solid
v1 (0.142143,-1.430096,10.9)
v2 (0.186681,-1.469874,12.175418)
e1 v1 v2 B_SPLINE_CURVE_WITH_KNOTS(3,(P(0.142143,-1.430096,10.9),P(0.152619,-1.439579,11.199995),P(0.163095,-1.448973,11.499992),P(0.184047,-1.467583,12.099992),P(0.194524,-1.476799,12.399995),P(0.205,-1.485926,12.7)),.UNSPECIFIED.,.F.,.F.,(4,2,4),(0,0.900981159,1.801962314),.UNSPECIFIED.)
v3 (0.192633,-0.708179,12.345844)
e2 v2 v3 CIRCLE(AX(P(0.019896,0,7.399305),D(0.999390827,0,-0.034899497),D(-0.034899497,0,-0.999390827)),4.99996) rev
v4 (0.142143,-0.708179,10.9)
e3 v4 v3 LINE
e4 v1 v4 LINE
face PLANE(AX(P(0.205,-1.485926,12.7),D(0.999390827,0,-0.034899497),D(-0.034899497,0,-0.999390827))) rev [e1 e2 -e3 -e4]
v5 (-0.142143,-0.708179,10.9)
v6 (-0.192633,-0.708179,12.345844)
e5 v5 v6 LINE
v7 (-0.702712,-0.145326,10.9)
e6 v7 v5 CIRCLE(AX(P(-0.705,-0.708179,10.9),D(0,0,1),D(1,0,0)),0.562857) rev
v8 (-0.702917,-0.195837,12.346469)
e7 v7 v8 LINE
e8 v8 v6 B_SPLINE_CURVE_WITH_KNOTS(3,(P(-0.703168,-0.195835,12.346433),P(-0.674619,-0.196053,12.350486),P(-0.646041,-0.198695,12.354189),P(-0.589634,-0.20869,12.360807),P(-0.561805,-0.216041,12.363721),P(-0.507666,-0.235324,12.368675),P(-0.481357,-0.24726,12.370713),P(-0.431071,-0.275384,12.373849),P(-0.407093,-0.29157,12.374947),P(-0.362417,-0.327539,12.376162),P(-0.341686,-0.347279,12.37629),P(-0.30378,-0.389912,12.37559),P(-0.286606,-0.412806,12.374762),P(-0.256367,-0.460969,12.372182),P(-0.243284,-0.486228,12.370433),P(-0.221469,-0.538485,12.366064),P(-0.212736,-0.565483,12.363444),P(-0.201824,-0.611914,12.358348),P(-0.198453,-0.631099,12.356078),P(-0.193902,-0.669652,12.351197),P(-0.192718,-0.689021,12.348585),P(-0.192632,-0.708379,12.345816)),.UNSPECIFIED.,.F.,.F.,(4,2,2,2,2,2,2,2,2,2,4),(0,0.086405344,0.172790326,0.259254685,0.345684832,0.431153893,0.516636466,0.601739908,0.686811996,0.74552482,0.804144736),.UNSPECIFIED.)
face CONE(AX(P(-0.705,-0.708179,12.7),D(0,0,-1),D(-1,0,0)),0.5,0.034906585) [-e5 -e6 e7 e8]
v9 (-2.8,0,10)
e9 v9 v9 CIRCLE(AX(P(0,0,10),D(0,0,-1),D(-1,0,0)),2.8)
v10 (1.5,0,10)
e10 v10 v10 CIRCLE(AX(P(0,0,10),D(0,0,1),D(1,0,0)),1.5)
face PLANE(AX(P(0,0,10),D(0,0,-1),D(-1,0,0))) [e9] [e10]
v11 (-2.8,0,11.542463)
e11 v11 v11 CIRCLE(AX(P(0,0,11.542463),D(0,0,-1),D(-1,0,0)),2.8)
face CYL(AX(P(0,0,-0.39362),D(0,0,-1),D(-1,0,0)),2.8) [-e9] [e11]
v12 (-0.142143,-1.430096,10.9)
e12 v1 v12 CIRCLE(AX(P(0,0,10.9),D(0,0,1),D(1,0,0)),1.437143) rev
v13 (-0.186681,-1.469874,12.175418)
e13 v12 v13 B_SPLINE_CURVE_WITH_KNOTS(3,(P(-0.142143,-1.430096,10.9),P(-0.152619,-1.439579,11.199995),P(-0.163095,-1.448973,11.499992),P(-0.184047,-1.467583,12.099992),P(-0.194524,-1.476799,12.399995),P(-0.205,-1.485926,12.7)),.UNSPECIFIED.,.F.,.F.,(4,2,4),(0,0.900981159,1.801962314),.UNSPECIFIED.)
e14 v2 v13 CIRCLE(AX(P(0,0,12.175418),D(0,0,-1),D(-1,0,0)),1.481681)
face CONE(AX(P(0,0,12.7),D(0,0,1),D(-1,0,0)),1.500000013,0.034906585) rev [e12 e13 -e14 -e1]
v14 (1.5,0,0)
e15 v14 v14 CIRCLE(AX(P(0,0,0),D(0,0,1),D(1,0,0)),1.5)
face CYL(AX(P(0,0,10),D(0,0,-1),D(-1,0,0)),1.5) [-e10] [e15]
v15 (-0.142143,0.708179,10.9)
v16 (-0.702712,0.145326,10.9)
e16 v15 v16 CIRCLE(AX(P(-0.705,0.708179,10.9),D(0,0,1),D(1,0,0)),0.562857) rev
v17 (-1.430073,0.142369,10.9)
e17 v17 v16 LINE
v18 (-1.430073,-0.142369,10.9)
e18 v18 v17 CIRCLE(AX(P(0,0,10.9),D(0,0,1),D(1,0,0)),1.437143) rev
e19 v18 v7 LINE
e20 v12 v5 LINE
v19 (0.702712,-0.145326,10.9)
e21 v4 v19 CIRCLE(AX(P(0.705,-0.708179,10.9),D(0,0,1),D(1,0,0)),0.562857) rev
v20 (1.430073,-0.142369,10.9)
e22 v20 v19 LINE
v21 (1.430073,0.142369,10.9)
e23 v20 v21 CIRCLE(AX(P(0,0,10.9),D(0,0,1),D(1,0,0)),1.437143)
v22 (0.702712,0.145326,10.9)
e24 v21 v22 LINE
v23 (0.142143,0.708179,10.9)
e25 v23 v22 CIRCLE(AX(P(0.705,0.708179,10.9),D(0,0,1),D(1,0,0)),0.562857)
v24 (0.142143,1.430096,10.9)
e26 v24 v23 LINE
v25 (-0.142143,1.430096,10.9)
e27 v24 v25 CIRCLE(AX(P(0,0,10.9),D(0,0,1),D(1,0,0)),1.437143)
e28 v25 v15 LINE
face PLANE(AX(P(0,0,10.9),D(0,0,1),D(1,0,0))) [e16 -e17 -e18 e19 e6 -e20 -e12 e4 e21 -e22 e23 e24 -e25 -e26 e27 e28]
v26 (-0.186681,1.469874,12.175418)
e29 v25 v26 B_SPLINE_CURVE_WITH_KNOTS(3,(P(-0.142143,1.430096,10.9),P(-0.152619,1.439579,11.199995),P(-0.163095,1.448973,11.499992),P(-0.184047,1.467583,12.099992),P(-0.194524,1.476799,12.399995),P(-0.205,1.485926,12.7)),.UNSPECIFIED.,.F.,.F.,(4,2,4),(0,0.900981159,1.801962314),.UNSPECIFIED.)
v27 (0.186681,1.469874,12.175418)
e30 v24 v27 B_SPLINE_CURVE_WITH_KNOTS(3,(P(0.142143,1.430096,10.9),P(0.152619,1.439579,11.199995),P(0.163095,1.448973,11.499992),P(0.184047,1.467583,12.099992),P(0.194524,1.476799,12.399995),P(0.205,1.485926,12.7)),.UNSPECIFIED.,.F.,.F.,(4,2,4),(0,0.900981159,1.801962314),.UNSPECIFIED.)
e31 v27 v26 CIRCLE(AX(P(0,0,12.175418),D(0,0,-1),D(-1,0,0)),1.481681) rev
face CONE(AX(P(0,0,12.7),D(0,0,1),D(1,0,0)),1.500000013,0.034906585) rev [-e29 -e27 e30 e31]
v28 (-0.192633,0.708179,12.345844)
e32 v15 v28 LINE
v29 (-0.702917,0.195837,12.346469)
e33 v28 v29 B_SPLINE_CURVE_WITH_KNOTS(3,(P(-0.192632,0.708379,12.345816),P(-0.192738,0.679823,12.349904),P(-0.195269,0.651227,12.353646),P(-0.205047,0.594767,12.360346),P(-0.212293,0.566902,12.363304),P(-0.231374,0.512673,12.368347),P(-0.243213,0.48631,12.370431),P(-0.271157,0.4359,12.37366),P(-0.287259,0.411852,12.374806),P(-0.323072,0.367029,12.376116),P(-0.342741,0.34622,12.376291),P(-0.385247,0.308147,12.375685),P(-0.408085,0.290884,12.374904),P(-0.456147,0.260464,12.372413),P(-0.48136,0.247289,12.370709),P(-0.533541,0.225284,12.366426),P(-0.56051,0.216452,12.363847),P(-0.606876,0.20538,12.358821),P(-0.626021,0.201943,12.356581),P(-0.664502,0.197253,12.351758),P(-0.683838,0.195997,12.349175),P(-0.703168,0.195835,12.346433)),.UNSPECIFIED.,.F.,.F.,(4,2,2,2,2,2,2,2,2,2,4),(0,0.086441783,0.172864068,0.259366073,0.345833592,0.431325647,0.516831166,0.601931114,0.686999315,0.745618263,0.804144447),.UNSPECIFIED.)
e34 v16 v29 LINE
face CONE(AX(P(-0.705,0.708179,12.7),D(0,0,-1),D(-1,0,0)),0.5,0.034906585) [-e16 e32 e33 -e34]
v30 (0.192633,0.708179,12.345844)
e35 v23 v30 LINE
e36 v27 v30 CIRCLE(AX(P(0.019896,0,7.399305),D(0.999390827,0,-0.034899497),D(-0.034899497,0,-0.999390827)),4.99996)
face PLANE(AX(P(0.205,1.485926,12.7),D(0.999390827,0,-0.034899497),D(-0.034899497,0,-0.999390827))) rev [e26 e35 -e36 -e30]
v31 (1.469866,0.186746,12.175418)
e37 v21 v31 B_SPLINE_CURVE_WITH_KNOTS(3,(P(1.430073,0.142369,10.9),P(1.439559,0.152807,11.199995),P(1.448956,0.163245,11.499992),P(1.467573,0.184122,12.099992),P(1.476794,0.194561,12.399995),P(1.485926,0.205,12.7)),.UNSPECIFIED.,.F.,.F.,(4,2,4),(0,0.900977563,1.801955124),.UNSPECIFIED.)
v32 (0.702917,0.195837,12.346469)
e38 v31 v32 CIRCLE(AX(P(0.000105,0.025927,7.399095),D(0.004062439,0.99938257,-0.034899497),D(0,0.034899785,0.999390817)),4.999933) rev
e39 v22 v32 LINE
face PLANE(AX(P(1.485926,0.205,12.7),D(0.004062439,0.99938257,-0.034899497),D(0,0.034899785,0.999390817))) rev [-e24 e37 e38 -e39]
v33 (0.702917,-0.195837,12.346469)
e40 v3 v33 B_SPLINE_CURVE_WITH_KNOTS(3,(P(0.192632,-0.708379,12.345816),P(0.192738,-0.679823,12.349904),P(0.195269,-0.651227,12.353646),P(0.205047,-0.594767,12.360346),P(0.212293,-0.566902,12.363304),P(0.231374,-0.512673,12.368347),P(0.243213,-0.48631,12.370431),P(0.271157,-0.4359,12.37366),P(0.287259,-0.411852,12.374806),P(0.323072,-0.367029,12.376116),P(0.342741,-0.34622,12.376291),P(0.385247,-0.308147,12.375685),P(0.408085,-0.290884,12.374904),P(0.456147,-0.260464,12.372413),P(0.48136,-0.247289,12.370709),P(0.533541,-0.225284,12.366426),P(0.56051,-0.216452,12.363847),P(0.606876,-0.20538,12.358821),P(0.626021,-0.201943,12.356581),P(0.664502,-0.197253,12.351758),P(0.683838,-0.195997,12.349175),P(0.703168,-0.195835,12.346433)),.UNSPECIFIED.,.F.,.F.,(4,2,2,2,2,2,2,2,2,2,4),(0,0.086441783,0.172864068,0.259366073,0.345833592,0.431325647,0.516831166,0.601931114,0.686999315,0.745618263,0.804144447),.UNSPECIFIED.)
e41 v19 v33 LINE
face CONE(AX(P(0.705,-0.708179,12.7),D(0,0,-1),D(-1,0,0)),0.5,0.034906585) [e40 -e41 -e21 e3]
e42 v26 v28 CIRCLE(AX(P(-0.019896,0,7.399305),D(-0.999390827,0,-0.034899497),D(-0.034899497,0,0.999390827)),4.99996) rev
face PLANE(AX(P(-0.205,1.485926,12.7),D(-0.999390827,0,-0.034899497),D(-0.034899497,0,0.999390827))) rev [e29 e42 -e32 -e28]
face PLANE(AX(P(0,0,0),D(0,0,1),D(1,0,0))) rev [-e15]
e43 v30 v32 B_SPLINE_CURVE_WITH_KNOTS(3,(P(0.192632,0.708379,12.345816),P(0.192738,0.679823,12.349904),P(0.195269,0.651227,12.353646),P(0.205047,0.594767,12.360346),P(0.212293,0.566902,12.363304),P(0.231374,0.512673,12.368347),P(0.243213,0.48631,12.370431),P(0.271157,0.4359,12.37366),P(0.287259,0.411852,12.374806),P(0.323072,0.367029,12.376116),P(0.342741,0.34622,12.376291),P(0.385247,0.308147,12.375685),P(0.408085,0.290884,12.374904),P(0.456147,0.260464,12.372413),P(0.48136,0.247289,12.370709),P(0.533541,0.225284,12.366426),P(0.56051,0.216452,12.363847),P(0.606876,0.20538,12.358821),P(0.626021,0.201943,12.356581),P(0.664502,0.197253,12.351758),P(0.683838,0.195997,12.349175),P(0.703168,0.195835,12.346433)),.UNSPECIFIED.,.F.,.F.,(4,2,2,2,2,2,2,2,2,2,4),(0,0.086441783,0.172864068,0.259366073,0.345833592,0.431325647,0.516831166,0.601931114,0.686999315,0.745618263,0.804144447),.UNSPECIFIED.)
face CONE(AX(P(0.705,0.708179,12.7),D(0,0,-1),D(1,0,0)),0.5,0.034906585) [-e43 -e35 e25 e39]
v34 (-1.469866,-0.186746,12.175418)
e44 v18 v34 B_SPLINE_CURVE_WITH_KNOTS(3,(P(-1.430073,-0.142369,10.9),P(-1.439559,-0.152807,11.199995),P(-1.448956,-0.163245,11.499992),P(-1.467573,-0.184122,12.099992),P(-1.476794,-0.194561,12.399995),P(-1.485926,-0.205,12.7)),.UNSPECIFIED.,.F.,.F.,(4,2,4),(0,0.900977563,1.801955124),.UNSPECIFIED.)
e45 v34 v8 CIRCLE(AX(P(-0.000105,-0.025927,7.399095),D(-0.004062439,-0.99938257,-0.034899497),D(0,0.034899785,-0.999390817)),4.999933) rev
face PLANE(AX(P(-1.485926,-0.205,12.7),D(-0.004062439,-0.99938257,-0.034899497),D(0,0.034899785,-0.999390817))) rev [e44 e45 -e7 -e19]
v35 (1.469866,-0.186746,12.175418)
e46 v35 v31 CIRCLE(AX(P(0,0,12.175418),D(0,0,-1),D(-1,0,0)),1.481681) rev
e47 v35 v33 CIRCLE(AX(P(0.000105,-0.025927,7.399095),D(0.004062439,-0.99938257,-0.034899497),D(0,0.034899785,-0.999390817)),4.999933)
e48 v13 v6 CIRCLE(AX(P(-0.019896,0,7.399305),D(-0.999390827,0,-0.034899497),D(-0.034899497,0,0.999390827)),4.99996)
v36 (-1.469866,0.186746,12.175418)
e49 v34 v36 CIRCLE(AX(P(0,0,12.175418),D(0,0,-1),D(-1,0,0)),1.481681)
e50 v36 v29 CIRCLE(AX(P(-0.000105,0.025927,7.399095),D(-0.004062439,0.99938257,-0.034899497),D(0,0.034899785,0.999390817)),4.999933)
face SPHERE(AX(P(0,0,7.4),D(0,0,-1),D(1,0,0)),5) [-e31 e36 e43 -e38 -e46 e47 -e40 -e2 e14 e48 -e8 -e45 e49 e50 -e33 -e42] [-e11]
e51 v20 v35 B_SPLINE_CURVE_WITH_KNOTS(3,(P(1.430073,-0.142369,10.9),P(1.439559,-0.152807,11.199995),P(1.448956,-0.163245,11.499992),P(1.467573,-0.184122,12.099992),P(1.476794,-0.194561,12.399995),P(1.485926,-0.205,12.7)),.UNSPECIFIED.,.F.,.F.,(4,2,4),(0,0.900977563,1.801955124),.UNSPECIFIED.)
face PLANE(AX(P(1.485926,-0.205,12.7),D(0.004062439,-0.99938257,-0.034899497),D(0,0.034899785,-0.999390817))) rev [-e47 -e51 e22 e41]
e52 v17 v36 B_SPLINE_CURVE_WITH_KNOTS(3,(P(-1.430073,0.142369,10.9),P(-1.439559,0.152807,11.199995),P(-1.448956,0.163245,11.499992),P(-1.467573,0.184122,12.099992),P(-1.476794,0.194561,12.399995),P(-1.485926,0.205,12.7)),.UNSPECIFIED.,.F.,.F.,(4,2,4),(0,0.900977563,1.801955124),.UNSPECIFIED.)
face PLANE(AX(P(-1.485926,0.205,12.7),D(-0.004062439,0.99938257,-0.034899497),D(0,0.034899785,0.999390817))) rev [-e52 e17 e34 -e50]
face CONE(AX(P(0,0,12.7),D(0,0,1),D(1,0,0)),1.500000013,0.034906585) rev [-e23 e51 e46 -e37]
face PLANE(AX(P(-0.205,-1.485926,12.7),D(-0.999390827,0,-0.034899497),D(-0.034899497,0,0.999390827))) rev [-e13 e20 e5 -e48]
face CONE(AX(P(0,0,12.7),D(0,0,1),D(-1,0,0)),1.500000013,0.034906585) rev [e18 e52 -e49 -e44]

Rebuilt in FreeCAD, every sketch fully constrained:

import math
import FreeCAD as App
import Part
import Sketcher
from FreeCAD import Vector
Q = App.Units.Quantity

doc = App.newDocument("Part")
body = doc.addObject("PartDesign::Body", "Body")

# Sketch on XY plane
sketch1 = body.newObject("Sketcher::SketchObject", "Sketch")
sketch1.AttachmentSupport = (doc.getObject("XY_Plane"), [""])
sketch1.MapMode = "FlatFace"
sketch1.addGeometry(Part.Circle(Vector(0, 0, 0), Vector(0, 0, 1), 1.5), False)
sketch1.addConstraint([
    Sketcher.Constraint("Coincident", 0, 3, -1, 1),
    Sketcher.Constraint("Diameter", 0, Q("3 mm")),
])
pad1 = body.newObject("PartDesign::Pad", "Pad")
pad1.Profile = sketch1
pad1.Length = 10

# Sketch on XZ plane
sketch2 = body.newObject("Sketcher::SketchObject", "Sketch001")
sketch2.AttachmentSupport = (doc.getObject("XZ_Plane"), [""])
sketch2.MapMode = "FlatFace"
sketch2.addGeometry([
    Part.LineSegment(Vector(2.8, 10, 0), Vector(0, 10, 0)),
    Part.LineSegment(Vector(0, 10, 0), Vector(0, 12.4, 0)),
    Part.ArcOfCircle(Part.Circle(Vector(0, 7.4, 0), Vector(0, 0, 1), 5), math.radians(55.944203), math.radians(90)),
    Part.LineSegment(Vector(2.8, 11.542463, 0), Vector(2.8, 10, 0)),
], False)
sketch2.addConstraint([
    Sketcher.Constraint("Coincident", 0, 2, 1, 1),
    Sketcher.Constraint("Coincident", 1, 2, 2, 2),
    Sketcher.Constraint("Coincident", 2, 1, 3, 1),
    Sketcher.Constraint("Coincident", 3, 2, 0, 1),
    Sketcher.Constraint("Horizontal", 0),
    Sketcher.Constraint("Vertical", 1),
    Sketcher.Constraint("Vertical", 3),
    Sketcher.Constraint("PointOnObject", 2, 3, -2),
    Sketcher.Constraint("PointOnObject", 0, 2, -2),
    Sketcher.Constraint("Radius", 2, Q("5 mm")),
    Sketcher.Constraint("DistanceX", 0, 2, 0, 1, Q("2.8 mm")),
    Sketcher.Constraint("DistanceY", 1, 1, 1, 2, Q("2.4 mm")),
    Sketcher.Constraint("DistanceY", -1, 1, 0, 2, Q("10 mm")),
])
revolution = body.newObject("PartDesign::Revolution", "Revolution")
revolution.Profile = sketch2
revolution.ReferenceAxis = (sketch2, ["V_Axis"])
revolution.Angle = 360

# Sketch on XY plane
sketch3 = body.newObject("Sketcher::SketchObject", "Sketch002")
sketch3.AttachmentSupport = (doc.getObject("XY_Plane"), [""])
sketch3.MapMode = "FlatFace"
sketch3.AttachmentOffset = App.Placement(Vector(0, 0, 12.7), App.Rotation())
sketch3.addGeometry([
    Part.ArcOfCircle(Part.Circle(Vector(0, 0, 0), Vector(0, 0, 1), 1.5), math.radians(82.144994), math.radians(97.855006)),  # 0
    Part.LineSegment(Vector(0.205, 1.485926, 0), Vector(0.205, 0.708179, 0)),  # 1
    Part.ArcOfCircle(Part.Circle(Vector(0.705, 0.708179, 0), Vector(0, 0, 1), 0.5), math.radians(180), math.radians(269.767097)),  # 2
    Part.LineSegment(Vector(0.702968, 0.208183, 0), Vector(1.485926, 0.205, 0)),  # 3
    Part.ArcOfCircle(Part.Circle(Vector(0, 0, 0), Vector(0, 0, 1), 1.5), math.radians(-7.855006), math.radians(7.855006)),  # 4
    Part.LineSegment(Vector(1.485926, -0.205, 0), Vector(0.702968, -0.208183, 0)),  # 5
    Part.ArcOfCircle(Part.Circle(Vector(0.705, -0.708179, 0), Vector(0, 0, 1), 0.5), math.radians(90.232903), math.radians(180)),  # 6
    Part.LineSegment(Vector(0.205, -0.708179, 0), Vector(0.205, -1.485926, 0)),  # 7
    Part.ArcOfCircle(Part.Circle(Vector(0, 0, 0), Vector(0, 0, 1), 1.5), math.radians(-97.855006), math.radians(-82.144994)),  # 8
    Part.LineSegment(Vector(-0.205, -1.485926, 0), Vector(-0.205, -0.708179, 0)),  # 9
    Part.ArcOfCircle(Part.Circle(Vector(-0.705, -0.708179, 0), Vector(0, 0, 1), 0.5), math.radians(0), math.radians(89.767097)),  # 10
    Part.LineSegment(Vector(-0.702968, -0.208183, 0), Vector(-1.485926, -0.205, 0)),  # 11
    Part.ArcOfCircle(Part.Circle(Vector(0, 0, 0), Vector(0, 0, 1), 1.5), math.radians(172.144994), math.radians(187.855006)),  # 12
    Part.LineSegment(Vector(-1.485926, 0.205, 0), Vector(-0.702968, 0.208183, 0)),  # 13
    Part.ArcOfCircle(Part.Circle(Vector(-0.705, 0.708179, 0), Vector(0, 0, 1), 0.5), math.radians(-89.767097), math.radians(0)),  # 14
    Part.LineSegment(Vector(-0.205, 0.708179, 0), Vector(-0.205, 1.485926, 0)),  # 15
], False)
sketch3.addConstraint([
    Sketcher.Constraint("Coincident", 0, 1, 1, 1),
    Sketcher.Constraint("Tangent", 1, 2, 2, 1),
    Sketcher.Constraint("Tangent", 2, 2, 3, 1),
    Sketcher.Constraint("Coincident", 3, 2, 4, 2),
    Sketcher.Constraint("Coincident", 4, 1, 5, 1),
    Sketcher.Constraint("Tangent", 5, 2, 6, 1),
    Sketcher.Constraint("Tangent", 6, 2, 7, 1),
    Sketcher.Constraint("Coincident", 7, 2, 8, 2),
    Sketcher.Constraint("Coincident", 8, 1, 9, 1),
    Sketcher.Constraint("Tangent", 9, 2, 10, 1),
    Sketcher.Constraint("Tangent", 10, 2, 11, 1),
    Sketcher.Constraint("Coincident", 11, 2, 12, 2),
    Sketcher.Constraint("Coincident", 12, 1, 13, 1),
    Sketcher.Constraint("Tangent", 13, 2, 14, 1),
    Sketcher.Constraint("Tangent", 14, 2, 15, 1),
    Sketcher.Constraint("Coincident", 15, 2, 0, 2),
    Sketcher.Constraint("Vertical", 1),
    Sketcher.Constraint("Vertical", 7),
    Sketcher.Constraint("Vertical", 9),
    Sketcher.Constraint("Vertical", 15),
    Sketcher.Constraint("Coincident", 0, 3, -1, 1),
    Sketcher.Constraint("Coincident", 4, 3, -1, 1),
    Sketcher.Constraint("Coincident", 8, 3, -1, 1),
    Sketcher.Constraint("Coincident", 12, 3, -1, 1),
    Sketcher.Constraint("Equal", 0, 4),
    Sketcher.Constraint("Equal", 2, 6),
    Sketcher.Constraint("Equal", 4, 8),
    Sketcher.Constraint("Equal", 6, 10),
    Sketcher.Constraint("Equal", 8, 12),
    Sketcher.Constraint("Equal", 10, 14),
    Sketcher.Constraint("Symmetric", 2, 3, 10, 3, -1, 1),
    Sketcher.Constraint("Symmetric", 6, 3, 14, 3, -1, 1),
    Sketcher.Constraint("Symmetric", 6, 3, 10, 3, -2),
    Sketcher.Constraint("Parallel", 3, 11),
    Sketcher.Constraint("Parallel", 5, 13),
    Sketcher.Constraint("Horizontal", 4, 1, 11, 2),
    Sketcher.Constraint("Radius", 0, Q("1.5 mm")),
    Sketcher.Constraint("Radius", 2, Q("0.5 mm")),
    Sketcher.Constraint("DistanceX", 10, 3, 6, 3, Q("1.41 mm")),
    Sketcher.Constraint("DistanceY", 4, 1, 3, 2, Q("0.41 mm")),
    Sketcher.Constraint("DistanceY", 1, 2, 1, 1, Q("0.777747 mm")),
])
pocket1 = body.newObject("PartDesign::Pocket", "Pocket")
pocket1.Profile = sketch3
pocket1.Length = 1.8
pocket1.TaperAngle = -2

doc.recompute()
